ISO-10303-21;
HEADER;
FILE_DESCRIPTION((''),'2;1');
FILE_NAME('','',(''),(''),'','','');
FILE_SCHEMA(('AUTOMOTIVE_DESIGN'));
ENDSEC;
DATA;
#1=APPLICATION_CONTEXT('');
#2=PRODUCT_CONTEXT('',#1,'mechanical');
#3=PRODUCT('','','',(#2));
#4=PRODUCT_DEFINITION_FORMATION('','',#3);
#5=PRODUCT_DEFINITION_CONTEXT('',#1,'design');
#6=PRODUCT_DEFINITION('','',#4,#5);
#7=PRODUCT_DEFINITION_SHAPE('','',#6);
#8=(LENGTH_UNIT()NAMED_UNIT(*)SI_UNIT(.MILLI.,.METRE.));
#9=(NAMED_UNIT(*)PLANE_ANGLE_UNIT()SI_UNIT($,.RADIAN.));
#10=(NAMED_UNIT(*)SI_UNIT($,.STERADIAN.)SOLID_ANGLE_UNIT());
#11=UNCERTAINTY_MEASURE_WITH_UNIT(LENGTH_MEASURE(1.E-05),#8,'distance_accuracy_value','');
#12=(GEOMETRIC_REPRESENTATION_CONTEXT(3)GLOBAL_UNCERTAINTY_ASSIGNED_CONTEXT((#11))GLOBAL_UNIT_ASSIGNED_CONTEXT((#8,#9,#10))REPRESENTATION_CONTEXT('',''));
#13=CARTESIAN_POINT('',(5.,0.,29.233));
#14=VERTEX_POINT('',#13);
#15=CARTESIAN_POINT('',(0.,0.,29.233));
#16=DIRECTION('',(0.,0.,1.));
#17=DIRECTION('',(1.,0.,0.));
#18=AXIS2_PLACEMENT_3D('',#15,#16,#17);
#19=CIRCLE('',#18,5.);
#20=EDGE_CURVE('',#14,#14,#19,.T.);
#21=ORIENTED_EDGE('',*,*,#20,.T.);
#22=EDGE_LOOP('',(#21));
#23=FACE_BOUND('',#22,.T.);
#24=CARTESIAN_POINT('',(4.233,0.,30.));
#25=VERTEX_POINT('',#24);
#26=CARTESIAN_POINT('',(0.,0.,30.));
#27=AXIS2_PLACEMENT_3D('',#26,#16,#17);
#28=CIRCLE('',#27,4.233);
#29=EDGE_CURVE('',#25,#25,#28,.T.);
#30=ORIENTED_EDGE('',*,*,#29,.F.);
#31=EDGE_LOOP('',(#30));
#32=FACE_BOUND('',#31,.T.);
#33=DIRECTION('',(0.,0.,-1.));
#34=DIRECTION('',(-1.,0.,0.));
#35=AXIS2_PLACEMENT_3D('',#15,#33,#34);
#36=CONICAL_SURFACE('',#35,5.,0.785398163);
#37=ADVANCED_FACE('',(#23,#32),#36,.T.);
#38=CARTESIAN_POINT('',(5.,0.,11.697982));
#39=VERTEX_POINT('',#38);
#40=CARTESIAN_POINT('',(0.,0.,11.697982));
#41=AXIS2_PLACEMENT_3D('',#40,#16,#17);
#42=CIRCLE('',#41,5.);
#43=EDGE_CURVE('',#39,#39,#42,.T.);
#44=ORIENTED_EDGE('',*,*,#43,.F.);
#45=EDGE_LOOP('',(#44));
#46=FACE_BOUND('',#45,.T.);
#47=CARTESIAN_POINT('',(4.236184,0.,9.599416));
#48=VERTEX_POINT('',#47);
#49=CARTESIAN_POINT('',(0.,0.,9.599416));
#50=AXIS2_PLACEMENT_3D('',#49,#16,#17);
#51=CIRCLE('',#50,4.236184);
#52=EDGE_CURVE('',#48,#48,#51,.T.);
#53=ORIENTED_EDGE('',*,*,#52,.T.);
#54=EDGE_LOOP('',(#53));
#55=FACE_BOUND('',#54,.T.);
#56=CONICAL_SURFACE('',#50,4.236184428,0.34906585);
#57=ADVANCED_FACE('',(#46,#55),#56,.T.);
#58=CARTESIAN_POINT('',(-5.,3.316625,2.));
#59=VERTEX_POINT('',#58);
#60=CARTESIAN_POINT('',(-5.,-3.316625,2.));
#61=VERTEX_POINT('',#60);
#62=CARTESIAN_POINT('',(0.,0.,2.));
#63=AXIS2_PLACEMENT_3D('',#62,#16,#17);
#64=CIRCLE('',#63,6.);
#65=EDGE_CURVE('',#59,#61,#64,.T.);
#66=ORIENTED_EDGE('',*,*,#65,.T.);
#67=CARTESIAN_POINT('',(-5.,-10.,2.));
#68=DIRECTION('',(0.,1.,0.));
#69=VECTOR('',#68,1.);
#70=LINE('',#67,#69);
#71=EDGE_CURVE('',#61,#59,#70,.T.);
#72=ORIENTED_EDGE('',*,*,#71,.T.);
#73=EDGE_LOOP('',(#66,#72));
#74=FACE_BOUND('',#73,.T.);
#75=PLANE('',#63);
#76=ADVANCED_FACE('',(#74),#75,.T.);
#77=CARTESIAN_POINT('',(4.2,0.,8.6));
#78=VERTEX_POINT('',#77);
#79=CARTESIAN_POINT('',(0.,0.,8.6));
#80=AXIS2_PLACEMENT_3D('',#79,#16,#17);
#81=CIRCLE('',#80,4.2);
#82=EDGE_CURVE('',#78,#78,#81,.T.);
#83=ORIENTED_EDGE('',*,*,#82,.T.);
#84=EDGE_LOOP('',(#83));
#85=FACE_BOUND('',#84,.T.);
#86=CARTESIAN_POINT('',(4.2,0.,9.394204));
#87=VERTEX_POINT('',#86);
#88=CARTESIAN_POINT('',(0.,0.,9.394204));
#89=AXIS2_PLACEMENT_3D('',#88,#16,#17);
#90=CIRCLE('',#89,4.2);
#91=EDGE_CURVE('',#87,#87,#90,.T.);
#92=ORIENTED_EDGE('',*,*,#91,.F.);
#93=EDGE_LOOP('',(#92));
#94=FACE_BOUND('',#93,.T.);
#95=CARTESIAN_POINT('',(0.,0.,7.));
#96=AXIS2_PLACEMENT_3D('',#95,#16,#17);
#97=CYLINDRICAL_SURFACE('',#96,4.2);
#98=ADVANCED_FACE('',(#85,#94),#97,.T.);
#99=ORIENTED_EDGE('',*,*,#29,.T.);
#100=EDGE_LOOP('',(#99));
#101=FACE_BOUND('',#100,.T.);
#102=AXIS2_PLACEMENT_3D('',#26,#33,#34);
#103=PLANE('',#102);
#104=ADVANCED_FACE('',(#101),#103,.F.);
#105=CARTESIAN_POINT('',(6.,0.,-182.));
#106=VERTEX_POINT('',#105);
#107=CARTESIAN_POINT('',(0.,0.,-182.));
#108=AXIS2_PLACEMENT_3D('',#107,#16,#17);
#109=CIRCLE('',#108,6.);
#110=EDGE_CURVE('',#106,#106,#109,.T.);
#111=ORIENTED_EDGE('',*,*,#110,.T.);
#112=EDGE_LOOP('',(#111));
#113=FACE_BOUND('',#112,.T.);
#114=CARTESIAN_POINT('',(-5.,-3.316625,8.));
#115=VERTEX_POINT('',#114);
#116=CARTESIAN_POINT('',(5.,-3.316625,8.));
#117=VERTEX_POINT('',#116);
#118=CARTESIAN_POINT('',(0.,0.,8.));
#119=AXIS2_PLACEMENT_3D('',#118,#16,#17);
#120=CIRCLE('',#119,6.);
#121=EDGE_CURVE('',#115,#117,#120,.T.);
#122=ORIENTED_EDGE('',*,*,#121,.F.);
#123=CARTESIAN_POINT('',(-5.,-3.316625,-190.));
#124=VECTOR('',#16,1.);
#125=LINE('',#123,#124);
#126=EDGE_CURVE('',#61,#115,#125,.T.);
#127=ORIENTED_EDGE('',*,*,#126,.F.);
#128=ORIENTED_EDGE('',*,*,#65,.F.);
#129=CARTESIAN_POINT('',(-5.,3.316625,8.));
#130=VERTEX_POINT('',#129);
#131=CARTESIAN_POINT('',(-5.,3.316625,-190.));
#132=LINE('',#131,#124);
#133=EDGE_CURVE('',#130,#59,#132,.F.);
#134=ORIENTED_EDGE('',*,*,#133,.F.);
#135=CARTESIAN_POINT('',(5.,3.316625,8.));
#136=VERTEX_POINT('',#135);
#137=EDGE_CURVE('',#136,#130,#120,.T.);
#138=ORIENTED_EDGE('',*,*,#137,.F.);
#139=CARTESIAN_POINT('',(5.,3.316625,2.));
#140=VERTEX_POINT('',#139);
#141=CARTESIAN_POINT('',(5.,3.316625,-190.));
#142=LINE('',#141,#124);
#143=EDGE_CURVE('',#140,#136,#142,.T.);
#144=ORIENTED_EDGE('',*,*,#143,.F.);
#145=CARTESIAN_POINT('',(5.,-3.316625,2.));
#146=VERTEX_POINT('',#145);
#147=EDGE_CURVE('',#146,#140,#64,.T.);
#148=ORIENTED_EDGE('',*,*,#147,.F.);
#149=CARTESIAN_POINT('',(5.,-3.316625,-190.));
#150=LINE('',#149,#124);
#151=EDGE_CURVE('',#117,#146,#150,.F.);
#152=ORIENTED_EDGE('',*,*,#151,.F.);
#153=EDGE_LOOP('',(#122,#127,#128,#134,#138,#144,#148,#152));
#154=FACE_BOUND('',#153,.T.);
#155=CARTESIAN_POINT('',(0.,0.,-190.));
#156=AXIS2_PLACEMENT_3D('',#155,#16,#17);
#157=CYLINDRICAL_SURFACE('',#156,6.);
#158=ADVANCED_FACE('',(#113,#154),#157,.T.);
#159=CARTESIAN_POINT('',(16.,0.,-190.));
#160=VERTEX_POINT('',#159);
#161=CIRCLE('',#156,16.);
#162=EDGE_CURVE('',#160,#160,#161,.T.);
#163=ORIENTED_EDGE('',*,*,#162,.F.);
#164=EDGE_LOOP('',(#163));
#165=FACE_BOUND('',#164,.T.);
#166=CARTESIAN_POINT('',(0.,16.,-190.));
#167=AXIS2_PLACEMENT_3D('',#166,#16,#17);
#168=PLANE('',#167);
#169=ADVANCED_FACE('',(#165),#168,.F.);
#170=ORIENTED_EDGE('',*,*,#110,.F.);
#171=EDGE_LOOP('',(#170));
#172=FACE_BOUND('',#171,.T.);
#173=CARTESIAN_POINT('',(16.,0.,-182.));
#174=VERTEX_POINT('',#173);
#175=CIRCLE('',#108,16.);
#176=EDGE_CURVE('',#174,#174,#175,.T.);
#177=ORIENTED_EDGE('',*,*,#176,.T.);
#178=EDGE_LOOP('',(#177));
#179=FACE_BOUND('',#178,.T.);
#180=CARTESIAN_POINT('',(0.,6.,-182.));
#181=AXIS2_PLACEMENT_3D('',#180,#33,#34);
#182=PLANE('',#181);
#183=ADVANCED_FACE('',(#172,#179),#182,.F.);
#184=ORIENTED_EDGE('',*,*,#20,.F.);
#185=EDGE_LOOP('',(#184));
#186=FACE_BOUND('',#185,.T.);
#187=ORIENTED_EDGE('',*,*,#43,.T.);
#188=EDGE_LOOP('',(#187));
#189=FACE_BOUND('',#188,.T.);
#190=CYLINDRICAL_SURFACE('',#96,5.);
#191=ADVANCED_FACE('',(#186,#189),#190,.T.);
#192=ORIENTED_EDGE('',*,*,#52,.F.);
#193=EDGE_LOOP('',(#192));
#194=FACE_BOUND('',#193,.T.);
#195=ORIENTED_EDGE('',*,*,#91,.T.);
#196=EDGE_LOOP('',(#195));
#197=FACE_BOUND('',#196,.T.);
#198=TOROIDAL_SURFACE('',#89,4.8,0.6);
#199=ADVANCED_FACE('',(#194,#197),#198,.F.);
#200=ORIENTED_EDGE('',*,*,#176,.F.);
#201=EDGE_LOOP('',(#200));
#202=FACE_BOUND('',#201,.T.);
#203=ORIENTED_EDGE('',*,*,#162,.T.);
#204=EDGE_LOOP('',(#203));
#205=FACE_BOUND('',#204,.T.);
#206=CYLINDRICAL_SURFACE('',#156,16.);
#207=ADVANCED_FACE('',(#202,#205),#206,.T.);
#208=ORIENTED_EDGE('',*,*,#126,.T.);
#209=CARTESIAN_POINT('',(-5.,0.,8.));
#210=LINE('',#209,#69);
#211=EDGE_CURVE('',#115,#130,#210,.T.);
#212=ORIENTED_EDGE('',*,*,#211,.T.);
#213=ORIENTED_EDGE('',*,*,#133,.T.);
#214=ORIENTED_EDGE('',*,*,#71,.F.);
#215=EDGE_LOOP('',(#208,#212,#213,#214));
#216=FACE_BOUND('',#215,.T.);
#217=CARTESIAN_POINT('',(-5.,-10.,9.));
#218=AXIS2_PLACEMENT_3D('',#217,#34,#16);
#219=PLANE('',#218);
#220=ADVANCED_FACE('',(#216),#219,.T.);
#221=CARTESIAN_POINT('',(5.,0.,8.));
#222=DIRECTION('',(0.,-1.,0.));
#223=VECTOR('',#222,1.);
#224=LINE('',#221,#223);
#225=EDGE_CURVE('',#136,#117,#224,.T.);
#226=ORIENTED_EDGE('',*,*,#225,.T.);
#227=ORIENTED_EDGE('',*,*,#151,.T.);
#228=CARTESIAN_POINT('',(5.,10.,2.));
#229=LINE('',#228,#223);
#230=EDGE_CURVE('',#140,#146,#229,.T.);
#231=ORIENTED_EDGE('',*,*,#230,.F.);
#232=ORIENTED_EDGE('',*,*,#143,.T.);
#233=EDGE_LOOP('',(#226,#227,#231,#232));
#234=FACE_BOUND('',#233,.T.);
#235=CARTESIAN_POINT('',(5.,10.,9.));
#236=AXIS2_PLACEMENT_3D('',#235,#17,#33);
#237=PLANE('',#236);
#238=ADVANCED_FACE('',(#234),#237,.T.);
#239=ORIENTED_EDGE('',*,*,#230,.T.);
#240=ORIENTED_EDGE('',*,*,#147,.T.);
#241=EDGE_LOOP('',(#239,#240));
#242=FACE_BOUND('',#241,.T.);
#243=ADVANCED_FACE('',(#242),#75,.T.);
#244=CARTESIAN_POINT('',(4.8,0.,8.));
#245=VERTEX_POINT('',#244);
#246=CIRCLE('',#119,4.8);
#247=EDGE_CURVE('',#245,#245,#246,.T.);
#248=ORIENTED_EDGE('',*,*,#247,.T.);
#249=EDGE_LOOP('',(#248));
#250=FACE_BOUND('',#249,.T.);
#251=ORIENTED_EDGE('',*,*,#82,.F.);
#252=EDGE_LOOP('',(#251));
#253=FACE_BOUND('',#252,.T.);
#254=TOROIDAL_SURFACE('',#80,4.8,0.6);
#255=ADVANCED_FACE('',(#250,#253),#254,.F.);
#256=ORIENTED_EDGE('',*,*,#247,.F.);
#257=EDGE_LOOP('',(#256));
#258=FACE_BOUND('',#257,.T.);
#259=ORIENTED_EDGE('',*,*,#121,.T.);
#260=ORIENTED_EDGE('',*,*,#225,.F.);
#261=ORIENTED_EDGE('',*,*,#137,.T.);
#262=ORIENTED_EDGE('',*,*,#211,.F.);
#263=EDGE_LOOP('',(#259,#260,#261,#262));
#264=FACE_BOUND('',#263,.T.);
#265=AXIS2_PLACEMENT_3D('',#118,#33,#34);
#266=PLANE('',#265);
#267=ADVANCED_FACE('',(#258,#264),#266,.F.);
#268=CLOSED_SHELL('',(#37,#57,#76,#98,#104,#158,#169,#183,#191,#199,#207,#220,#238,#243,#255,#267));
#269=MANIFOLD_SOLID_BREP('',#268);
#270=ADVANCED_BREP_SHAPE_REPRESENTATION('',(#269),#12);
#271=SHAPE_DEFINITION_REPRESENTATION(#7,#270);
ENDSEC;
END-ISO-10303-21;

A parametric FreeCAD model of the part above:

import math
import FreeCAD as App
import Part
import Sketcher
from FreeCAD import Vector
Q = App.Units.Quantity


def add_polygon(sketch, points):
    """Adds a closed chain of lines whose ends are joined by coincident constraints."""
    first, n = sketch.GeometryCount, len(points)
    for a, b in zip(points, points[1:] + points[:1]):
        sketch.addGeometry(Part.LineSegment(App.Vector(*a, 0), App.Vector(*b, 0)), False)
    for i in range(n):
        sketch.addConstraint(Sketcher.Constraint("Coincident", first + i, 2, first + (i + 1) % n, 1))

doc = App.newDocument("Part")
body = doc.addObject("PartDesign::Body", "Body")

sketch1 = body.newObject("Sketcher::SketchObject", "Sketch")
sketch1.AttachmentSupport = (doc.getObject("YZ_Plane"), [""])
sketch1.MapMode = "FlatFace"
add_polygon(sketch1, [(6, 8), (0, 8), (0, -190), (16, -190), (16, -182), (6, -182)])
sketch1.addConstraint(Sketcher.Constraint("Horizontal", 0))
sketch1.addConstraint(Sketcher.Constraint("Vertical", 1))
sketch1.addConstraint(Sketcher.Constraint("Horizontal", 2))
sketch1.addConstraint(Sketcher.Constraint("Vertical", 3))
sketch1.addConstraint(Sketcher.Constraint("Horizontal", 4))
sketch1.addConstraint(Sketcher.Constraint("Vertical", 5))
sketch1.addConstraint(Sketcher.Constraint("PointOnObject", 0, 2, -2))
sketch1.addConstraint(Sketcher.Constraint("DistanceX", 0, 2, 0, 1, 6.0))
sketch1.addConstraint(Sketcher.Constraint("DistanceX", 2, 1, 2, 2, 16.0))
sketch1.addConstraint(Sketcher.Constraint("DistanceY", 1, 2, 1, 1, 198.0))
sketch1.addConstraint(Sketcher.Constraint("DistanceY", 3, 1, 3, 2, 8.0))
sketch1.addConstraint(Sketcher.Constraint("DistanceY", -1, 1, 0, 2, 8.0))
revolution = body.newObject("PartDesign::Revolution", "Revolution")
revolution.Profile = sketch1
revolution.ReferenceAxis = (sketch1, ["V_Axis"])
revolution.Angle = 360

sketch2 = body.newObject("Sketcher::SketchObject", "Sketch001")
sketch2.AttachmentSupport = (doc.getObject("YZ_Plane"), [""])
sketch2.MapMode = "FlatFace"
sketch2.addGeometry(Part.LineSegment(Vector(4.23, 30, 0), Vector(0, 30, 0)), False)
sketch2.addGeometry(Part.LineSegment(Vector(0, 30, 0), Vector(0, 7, 0)), False)
sketch2.addGeometry(Part.LineSegment(Vector(0, 7, 0), Vector(5, 7, 0)), False)
sketch2.addGeometry(Part.LineSegment(Vector(5, 7, 0), Vector(5, 8, 0)), False)
sketch2.addGeometry(Part.LineSegment(Vector(5, 8, 0), Vector(4.8, 8, 0)), False)
sketch2.addGeometry(Part.ArcOfCircle(Part.Circle(Vector(4.8, 8.6, 0), Vector(0, 0, 1), 0.6), math.radians(180), math.radians(270)), False)
sketch2.addGeometry(Part.LineSegment(Vector(4.2, 8.6, 0), Vector(4.2, 9.39, 0)), False)
sketch2.addGeometry(Part.ArcOfCircle(Part.Circle(Vector(4.8, 9.39, 0), Vector(0, 0, 1), 0.6), math.radians(160), math.radians(180)), False)
sketch2.addGeometry(Part.LineSegment(Vector(4.24, 9.6, 0), Vector(5, 11.7, 0)), False)
sketch2.addGeometry(Part.LineSegment(Vector(5, 11.7, 0), Vector(5, 29.23, 0)), False)
sketch2.addGeometry(Part.LineSegment(Vector(5, 29.23, 0), Vector(4.23, 30, 0)), False)
sketch2.addConstraint(Sketcher.Constraint("Coincident", 0, 2, 1, 1))
sketch2.addConstraint(Sketcher.Constraint("Coincident", 1, 2, 2, 1))
sketch2.addConstraint(Sketcher.Constraint("Coincident", 2, 2, 3, 1))
sketch2.addConstraint(Sketcher.Constraint("Coincident", 3, 2, 4, 1))
sketch2.addConstraint(Sketcher.Constraint("Tangent", 4, 2, 5, 2))
sketch2.addConstraint(Sketcher.Constraint("Tangent", 5, 1, 6, 1))
sketch2.addConstraint(Sketcher.Constraint("Tangent", 6, 2, 7, 2))
sketch2.addConstraint(Sketcher.Constraint("Tangent", 7, 1, 8, 1))
sketch2.addConstraint(Sketcher.Constraint("Coincident", 8, 2, 9, 1))
sketch2.addConstraint(Sketcher.Constraint("Coincident", 9, 2, 10, 1))
sketch2.addConstraint(Sketcher.Constraint("Coincident", 10, 2, 0, 1))
sketch2.addConstraint(Sketcher.Constraint("Horizontal", 0))
sketch2.addConstraint(Sketcher.Constraint("Vertical", 1))
sketch2.addConstraint(Sketcher.Constraint("Horizontal", 2))
sketch2.addConstraint(Sketcher.Constraint("Vertical", 3))
sketch2.addConstraint(Sketcher.Constraint("Horizontal", 4))
sketch2.addConstraint(Sketcher.Constraint("Vertical", 6))
sketch2.addConstraint(Sketcher.Constraint("Vertical", 9))
sketch2.addConstraint(Sketcher.Constraint("Equal", 5, 7))
sketch2.addConstraint(Sketcher.Constraint("PointOnObject", 0, 2, -2))
sketch2.addConstraint(Sketcher.Constraint("Vertical", 3, 2, 8, 2))
sketch2.addConstraint(Sketcher.Constraint("Radius", 5, 0.6))
sketch2.addConstraint(Sketcher.Constraint("DistanceX", 2, 1, 2, 2, 5.0))
sketch2.addConstraint(Sketcher.Constraint("DistanceY", 1, 2, 1, 1, 23.0))
sketch2.addConstraint(Sketcher.Constraint("DistanceY", 3, 1, 3, 2, 1.0))
sketch2.addConstraint(Sketcher.Constraint("Angle", 8, Q("70 deg")))
sketch2.addConstraint(Sketcher.Constraint("Angle", 10, Q("135 deg")))
sketch2.addConstraint(Sketcher.Constraint("DistanceX", 4, 2, 4, 1, 0.2))
sketch2.addConstraint(Sketcher.Constraint("DistanceY", -1, 1, 0, 2, 30.0))
sketch2.addConstraint(Sketcher.Constraint("DistanceX", 0, 2, 0, 1, 4.233))
sketch2.addConstraint(Sketcher.Constraint("DistanceY", 9, 1, 9, 2, 17.535018))
revolution2 = body.newObject("PartDesign::Revolution", "Revolution001")
revolution2.Profile = sketch2
revolution2.ReferenceAxis = (sketch2, ["V_Axis"])
revolution2.Angle = 360

sketch3 = body.newObject("Sketcher::SketchObject", "Sketch002")
sketch3.AttachmentSupport = (doc.getObject("XY_Plane"), [""])
sketch3.MapMode = "FlatFace"
sketch3.AttachmentOffset = App.Placement(Vector(0, 0, 2), App.Rotation())
add_polygon(sketch3, [(-10, 20), (-10, -10), (-5, -10), (-5, 10), (5, 10), (5, -10), (10, -10), (10, 20)])
sketch3.addConstraint(Sketcher.Constraint("Vertical", 0))
sketch3.addConstraint(Sketcher.Constraint("Horizontal", 1))
sketch3.addConstraint(Sketcher.Constraint("Vertical", 2))
sketch3.addConstraint(Sketcher.Constraint("Horizontal", 3))
sketch3.addConstraint(Sketcher.Constraint("Vertical", 4))
sketch3.addConstraint(Sketcher.Constraint("Horizontal", 5))
sketch3.addConstraint(Sketcher.Constraint("Vertical", 6))
sketch3.addConstraint(Sketcher.Constraint("Horizontal", 7))
sketch3.addConstraint(Sketcher.Constraint("Symmetric", 1, 2, 3, 2, -1, 1))
sketch3.addConstraint(Sketcher.Constraint("Symmetric", 0, 2, 5, 2, -2))
sketch3.addConstraint(Sketcher.Constraint("Equal", 7, 2))
sketch3.addConstraint(Sketcher.Constraint("DistanceX", 1, 1, 1, 2, 5.0))
sketch3.addConstraint(Sketcher.Constraint("DistanceX", 3, 1, 3, 2, 10.0))
sketch3.addConstraint(Sketcher.Constraint("DistanceY", 0, 2, 0, 1, 30.0))
pocket1 = body.newObject("PartDesign::Pocket", "Pocket")
pocket1.Profile = sketch3
pocket1.Length = 7
pocket1.Reversed = True

doc.recompute()
